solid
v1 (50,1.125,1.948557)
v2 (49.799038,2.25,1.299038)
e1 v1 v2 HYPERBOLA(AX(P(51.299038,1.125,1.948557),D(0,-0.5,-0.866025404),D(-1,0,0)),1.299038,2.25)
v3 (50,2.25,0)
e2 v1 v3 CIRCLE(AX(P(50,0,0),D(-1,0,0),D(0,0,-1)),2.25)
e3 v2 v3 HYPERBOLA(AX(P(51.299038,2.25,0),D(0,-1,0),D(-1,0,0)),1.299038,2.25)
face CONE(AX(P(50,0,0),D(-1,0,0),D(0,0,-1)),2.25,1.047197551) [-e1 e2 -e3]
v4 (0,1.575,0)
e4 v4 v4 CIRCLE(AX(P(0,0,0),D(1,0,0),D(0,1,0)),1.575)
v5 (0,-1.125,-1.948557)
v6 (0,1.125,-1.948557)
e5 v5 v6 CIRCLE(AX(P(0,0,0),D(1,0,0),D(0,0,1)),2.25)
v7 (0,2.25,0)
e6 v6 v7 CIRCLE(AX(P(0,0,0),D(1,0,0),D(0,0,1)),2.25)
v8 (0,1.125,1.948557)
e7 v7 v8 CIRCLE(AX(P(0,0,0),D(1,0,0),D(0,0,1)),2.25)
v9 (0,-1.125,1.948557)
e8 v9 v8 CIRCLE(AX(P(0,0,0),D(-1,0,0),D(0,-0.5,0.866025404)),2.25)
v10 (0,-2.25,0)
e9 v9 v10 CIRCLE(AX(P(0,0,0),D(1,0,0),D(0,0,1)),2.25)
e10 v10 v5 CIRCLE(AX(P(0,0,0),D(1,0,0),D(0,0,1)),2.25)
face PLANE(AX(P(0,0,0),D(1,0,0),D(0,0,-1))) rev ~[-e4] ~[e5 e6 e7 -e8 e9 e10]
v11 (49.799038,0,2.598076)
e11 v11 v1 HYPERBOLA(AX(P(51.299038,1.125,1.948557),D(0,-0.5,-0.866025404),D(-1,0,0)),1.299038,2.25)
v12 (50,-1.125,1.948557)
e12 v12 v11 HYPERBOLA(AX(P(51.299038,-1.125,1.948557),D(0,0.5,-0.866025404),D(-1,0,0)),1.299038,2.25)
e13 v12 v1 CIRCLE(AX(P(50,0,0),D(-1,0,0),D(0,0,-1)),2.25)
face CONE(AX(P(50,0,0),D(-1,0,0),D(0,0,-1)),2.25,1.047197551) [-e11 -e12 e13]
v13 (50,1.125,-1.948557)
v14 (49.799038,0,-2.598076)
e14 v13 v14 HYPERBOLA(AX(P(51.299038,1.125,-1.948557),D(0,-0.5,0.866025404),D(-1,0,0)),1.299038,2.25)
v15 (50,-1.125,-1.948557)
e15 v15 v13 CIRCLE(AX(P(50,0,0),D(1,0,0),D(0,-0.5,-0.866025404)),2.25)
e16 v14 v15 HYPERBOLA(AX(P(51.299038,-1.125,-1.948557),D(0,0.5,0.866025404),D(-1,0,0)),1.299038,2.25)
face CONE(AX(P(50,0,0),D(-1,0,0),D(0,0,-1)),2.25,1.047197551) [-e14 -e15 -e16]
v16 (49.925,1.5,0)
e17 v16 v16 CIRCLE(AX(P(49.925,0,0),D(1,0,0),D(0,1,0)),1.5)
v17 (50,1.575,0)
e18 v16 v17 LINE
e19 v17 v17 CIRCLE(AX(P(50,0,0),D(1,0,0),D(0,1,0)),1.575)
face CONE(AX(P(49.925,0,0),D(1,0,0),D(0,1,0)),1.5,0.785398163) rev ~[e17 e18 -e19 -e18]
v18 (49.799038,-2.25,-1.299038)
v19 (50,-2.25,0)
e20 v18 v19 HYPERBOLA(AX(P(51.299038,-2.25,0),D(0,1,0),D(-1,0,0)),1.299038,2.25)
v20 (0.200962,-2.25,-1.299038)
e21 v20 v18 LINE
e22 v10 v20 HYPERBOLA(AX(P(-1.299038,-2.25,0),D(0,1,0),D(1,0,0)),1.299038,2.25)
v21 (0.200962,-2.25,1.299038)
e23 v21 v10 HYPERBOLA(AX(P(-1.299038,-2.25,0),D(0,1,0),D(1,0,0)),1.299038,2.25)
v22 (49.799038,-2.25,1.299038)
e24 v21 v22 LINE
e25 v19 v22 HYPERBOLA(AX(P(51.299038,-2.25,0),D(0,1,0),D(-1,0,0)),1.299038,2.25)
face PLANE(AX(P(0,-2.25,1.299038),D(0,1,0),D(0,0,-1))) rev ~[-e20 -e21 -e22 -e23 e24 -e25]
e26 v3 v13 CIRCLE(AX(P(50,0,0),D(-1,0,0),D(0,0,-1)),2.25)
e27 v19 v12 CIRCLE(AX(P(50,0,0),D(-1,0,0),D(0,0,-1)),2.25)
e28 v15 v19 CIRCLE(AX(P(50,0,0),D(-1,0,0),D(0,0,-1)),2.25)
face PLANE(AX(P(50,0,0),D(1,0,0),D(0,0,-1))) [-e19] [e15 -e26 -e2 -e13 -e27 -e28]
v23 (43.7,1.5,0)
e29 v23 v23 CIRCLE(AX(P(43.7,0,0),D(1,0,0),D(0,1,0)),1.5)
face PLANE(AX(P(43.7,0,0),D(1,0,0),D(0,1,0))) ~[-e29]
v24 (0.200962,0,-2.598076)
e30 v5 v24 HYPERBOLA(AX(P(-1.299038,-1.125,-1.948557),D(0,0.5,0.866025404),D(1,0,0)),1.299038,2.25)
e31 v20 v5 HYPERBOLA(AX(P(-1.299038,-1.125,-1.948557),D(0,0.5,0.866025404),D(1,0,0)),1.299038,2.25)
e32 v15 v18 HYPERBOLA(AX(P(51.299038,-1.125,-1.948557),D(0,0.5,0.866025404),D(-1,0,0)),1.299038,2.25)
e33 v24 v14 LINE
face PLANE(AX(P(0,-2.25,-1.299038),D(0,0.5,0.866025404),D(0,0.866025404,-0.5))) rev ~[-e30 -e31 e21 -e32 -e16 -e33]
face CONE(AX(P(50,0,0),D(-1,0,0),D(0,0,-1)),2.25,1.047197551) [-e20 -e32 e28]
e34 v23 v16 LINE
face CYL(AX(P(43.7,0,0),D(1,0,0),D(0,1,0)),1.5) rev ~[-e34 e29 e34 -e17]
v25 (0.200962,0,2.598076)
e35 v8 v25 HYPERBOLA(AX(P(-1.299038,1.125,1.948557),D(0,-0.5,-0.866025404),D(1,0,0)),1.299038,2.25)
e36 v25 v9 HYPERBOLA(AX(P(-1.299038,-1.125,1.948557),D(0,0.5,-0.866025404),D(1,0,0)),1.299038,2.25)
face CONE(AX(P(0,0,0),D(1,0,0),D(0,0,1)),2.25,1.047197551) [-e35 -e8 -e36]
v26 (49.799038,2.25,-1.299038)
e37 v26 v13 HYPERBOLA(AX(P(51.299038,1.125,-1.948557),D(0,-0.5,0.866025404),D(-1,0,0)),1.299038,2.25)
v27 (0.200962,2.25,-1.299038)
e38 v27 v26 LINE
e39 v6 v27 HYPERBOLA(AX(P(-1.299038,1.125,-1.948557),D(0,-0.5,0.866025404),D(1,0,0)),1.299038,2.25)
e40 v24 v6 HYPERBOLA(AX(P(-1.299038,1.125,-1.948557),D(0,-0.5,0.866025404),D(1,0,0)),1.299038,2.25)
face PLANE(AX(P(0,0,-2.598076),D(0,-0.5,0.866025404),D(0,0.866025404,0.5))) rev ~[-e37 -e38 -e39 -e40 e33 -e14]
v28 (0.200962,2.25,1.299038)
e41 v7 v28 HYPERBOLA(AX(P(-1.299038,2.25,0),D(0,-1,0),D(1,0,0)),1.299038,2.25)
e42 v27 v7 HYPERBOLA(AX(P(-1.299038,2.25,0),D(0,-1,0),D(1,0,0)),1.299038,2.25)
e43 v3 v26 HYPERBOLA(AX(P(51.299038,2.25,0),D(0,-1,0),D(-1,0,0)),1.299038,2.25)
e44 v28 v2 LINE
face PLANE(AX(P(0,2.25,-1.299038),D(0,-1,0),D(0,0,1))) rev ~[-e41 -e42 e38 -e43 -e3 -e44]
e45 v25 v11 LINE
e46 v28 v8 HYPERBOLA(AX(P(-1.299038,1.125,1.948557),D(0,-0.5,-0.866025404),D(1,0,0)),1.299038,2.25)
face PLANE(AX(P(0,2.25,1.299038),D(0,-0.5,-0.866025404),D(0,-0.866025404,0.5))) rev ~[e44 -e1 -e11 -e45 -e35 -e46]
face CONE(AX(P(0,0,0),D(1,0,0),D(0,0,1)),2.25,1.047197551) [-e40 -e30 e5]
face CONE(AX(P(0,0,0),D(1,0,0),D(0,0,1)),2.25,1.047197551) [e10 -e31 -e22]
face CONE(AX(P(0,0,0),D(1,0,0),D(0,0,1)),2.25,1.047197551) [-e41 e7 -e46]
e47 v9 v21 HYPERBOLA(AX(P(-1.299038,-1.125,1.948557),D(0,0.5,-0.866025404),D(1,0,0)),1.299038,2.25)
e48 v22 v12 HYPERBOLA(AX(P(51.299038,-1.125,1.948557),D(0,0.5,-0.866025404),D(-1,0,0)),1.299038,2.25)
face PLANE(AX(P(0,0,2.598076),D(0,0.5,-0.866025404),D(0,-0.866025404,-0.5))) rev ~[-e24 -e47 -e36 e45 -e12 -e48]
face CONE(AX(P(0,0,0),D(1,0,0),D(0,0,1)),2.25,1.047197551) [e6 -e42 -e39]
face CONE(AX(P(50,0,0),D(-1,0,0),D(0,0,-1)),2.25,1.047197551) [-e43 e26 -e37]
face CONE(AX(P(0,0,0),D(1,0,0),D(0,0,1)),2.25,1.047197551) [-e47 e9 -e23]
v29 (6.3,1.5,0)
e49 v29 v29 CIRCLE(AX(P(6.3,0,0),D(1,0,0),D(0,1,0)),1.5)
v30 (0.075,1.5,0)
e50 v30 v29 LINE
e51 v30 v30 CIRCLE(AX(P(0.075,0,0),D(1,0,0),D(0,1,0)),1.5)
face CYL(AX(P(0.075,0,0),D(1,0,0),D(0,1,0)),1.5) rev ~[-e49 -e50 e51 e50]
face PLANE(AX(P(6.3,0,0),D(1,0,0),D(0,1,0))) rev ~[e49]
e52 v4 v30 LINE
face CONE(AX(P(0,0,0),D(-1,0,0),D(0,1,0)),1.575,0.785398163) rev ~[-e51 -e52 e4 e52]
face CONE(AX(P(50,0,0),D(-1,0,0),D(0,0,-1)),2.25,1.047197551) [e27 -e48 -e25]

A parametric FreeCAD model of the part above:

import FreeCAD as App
import Part
import Sketcher
Q = App.Units.Quantity

doc = App.newDocument("Part")
params = doc.addObject("Spreadsheet::Sheet", "Params")
for row, (alias, value) in enumerate([
    ("pad1_length", "50 mm"),
    ("sketch2_width", "6.3 mm"),
    ("sketch2_height", "1.5 mm"),
    ("groove_angle", "360 deg"),
    ("sketch3_diameter", "4.5 mm"),
    ("sketch3_height", "193.96 mm"),
    ("pocket1_length", "51 mm"),
    ("pocket1_taper", "60 deg"),
    ("sketch4_diameter", "4.5 mm"),
    ("sketch4_height", "193.96 mm"),
    ("pocket2_length", "51 mm"),
    ("pocket2_taper", "60 deg"),
], start=1):
    params.set(f"A{row}", alias)
    params.set(f"B{row}", "=" + value)
    params.setAlias(f"B{row}", alias)

body = doc.addObject("PartDesign::Body", "Body")

# Sketch on YZ plane
sketch1 = body.newObject("Sketcher::SketchObject", "Sketch")
sketch1.AttachmentSupport = (doc.getObject("YZ_Plane"), [""])
sketch1.MapMode = "FlatFace"
sketch1.addGeometry([
    Part.LineSegment(App.Vector(2.2, -1.3, 0), App.Vector(2.2, 1.3, 0)),  # 0
    Part.LineSegment(App.Vector(2.2, 1.3, 0), App.Vector(0, 2.6, 0)),  # 1
    Part.LineSegment(App.Vector(0, 2.6, 0), App.Vector(-2.2, 1.3, 0)),  # 2
    Part.LineSegment(App.Vector(-2.2, 1.3, 0), App.Vector(-2.2, -1.3, 0)),  # 3
    Part.LineSegment(App.Vector(-2.2, -1.3, 0), App.Vector(0, -2.6, 0)),  # 4
    Part.LineSegment(App.Vector(0, -2.6, 0), App.Vector(2.2, -1.3, 0)),  # 5
], False)
sketch1.addConstraint([
    Sketcher.Constraint("Coincident", 0, 2, 1, 1),
    Sketcher.Constraint("Coincident", 1, 2, 2, 1),
    Sketcher.Constraint("Coincident", 2, 2, 3, 1),
    Sketcher.Constraint("Coincident", 3, 2, 4, 1),
    Sketcher.Constraint("Coincident", 4, 2, 5, 1),
    Sketcher.Constraint("Coincident", 5, 2, 0, 1),
    Sketcher.Constraint("Vertical", 0),
    Sketcher.Constraint("Vertical", 3),
    Sketcher.Constraint("Symmetric", 0, 2, 3, 2, -1, 1),
    Sketcher.Constraint("Symmetric", 1, 2, 4, 2, -1, 1),
    Sketcher.Constraint("PointOnObject", 1, 2, -2),
    Sketcher.Constraint("Parallel", 2, 5),
    Sketcher.Constraint("Horizontal", 0, 2, 2, 2),
    Sketcher.Constraint("Angle", 1, Q("150 deg")),
    Sketcher.Constraint("DistanceX", 2, 2, 0, 2, 4.5),
    Sketcher.Constraint("DistanceY", 0, 1, 0, 2, 2.598076),
])
pad1 = body.newObject("PartDesign::Pad", "Pad")
pad1.Profile = sketch1
pad1.setExpression("Length", "Params.pad1_length")

# Sketch on XY plane
sketch2 = body.newObject("Sketcher::SketchObject", "Sketch001")
sketch2.AttachmentSupport = (doc.getObject("XY_Plane"), [""])
sketch2.MapMode = "FlatFace"
sketch2.addGeometry([
    Part.LineSegment(App.Vector(0.07, 1.5, 0), App.Vector(0, 1.57, 0)),  # 0
    Part.LineSegment(App.Vector(0, 1.57, 0), App.Vector(0, 0, 0)),  # 1
    Part.LineSegment(App.Vector(0, 0, 0), App.Vector(6.3, 0, 0)),  # 2
    Part.LineSegment(App.Vector(6.3, 0, 0), App.Vector(6.3, 1.5, 0)),  # 3
    Part.LineSegment(App.Vector(6.3, 1.5, 0), App.Vector(0.07, 1.5, 0)),  # 4
    Part.LineSegment(App.Vector(43.7, 0, 0), App.Vector(50, 0, 0)),  # 5
    Part.LineSegment(App.Vector(50, 0, 0), App.Vector(50, 1.57, 0)),  # 6
    Part.LineSegment(App.Vector(50, 1.57, 0), App.Vector(49.92, 1.5, 0)),  # 7
    Part.LineSegment(App.Vector(49.92, 1.5, 0), App.Vector(43.7, 1.5, 0)),  # 8
    Part.LineSegment(App.Vector(43.7, 1.5, 0), App.Vector(43.7, 0, 0)),  # 9
], False)
sketch2.addConstraint([
    Sketcher.Constraint("Coincident", 0, 2, 1, 1),
    Sketcher.Constraint("Coincident", 1, 2, 2, 1),
    Sketcher.Constraint("Coincident", 2, 2, 3, 1),
    Sketcher.Constraint("Coincident", 3, 2, 4, 1),
    Sketcher.Constraint("Coincident", 4, 2, 0, 1),
    Sketcher.Constraint("Coincident", 5, 2, 6, 1),
    Sketcher.Constraint("Coincident", 6, 2, 7, 1),
    Sketcher.Constraint("Coincident", 7, 2, 8, 1),
    Sketcher.Constraint("Coincident", 8, 2, 9, 1),
    Sketcher.Constraint("Coincident", 9, 2, 5, 1),
    Sketcher.Constraint("Vertical", 1),
    Sketcher.Constraint("Horizontal", 2),
    Sketcher.Constraint("Vertical", 3),
    Sketcher.Constraint("Horizontal", 4),
    Sketcher.Constraint("Horizontal", 5),
    Sketcher.Constraint("Vertical", 6),
    Sketcher.Constraint("Horizontal", 8),
    Sketcher.Constraint("Vertical", 9),
    Sketcher.Constraint("Coincident", 1, 2, -1, 1),
    Sketcher.Constraint("PointOnObject", 5, 2, -1),
    Sketcher.Constraint("Perpendicular", 0, 7),
    Sketcher.Constraint("Horizontal", 0, 2, 6, 2),
    Sketcher.Constraint("Horizontal", 4, 2, 7, 2),
    Sketcher.Constraint("Equal", 2, 5),
    Sketcher.Constraint("Equal", 4, 8),
    Sketcher.Constraint("DistanceX", 2, 1, 2, 2, 6.3),
    Sketcher.Constraint("DistanceY", 3, 1, 3, 2, 1.5),
    Sketcher.Constraint("DistanceX", -1, 1, 5, 2, 50.0),
    Sketcher.Constraint("DistanceX", 4, 2, 4, 1, 6.225),
])
sketch2.setExpression("Constraints[25]", "Params.sketch2_width")
sketch2.setExpression("Constraints[26]", "Params.sketch2_height")
groove = body.newObject("PartDesign::Groove", "Groove")
groove.Profile = sketch2
groove.ReferenceAxis = (sketch2, ["H_Axis"])
groove.setExpression("Angle", "Params.groove_angle")

# Sketch on YZ plane
sketch3 = body.newObject("Sketcher::SketchObject", "Sketch002")
sketch3.AttachmentSupport = (doc.getObject("YZ_Plane"), [""])
sketch3.MapMode = "FlatFace"
sketch3.addGeometry([
    Part.LineSegment(App.Vector(96.6, -97, 0), App.Vector(-96.6, -97, 0)),  # 0
    Part.LineSegment(App.Vector(-96.6, -97, 0), App.Vector(-96.6, 97, 0)),  # 1
    Part.LineSegment(App.Vector(-96.6, 97, 0), App.Vector(96.6, 97, 0)),  # 2
    Part.LineSegment(App.Vector(96.6, 97, 0), App.Vector(96.6, -97, 0)),  # 3
    Part.Circle(App.Vector(0, 0, 0), App.Vector(0, 0, 1), 2.2),  # 4
], False)
sketch3.addConstraint([
    Sketcher.Constraint("Coincident", 0, 2, 1, 1),
    Sketcher.Constraint("Coincident", 1, 2, 2, 1),
    Sketcher.Constraint("Coincident", 2, 2, 3, 1),
    Sketcher.Constraint("Coincident", 3, 2, 0, 1),
    Sketcher.Constraint("Horizontal", 0),
    Sketcher.Constraint("Vertical", 1),
    Sketcher.Constraint("Horizontal", 2),
    Sketcher.Constraint("Vertical", 3),
    Sketcher.Constraint("Coincident", 4, 3, -1, 1),
    Sketcher.Constraint("Symmetric", 0, 2, 2, 2, -1, 1),
    Sketcher.Constraint("Diameter", 4, 4.5),
    Sketcher.Constraint("DistanceY", 1, 1, 1, 2, 193.96),
    Sketcher.Constraint("DistanceX", 0, 2, 0, 1, 193.264),
])
sketch3.setExpression("Constraints[10]", "Params.sketch3_diameter")
sketch3.setExpression("Constraints[11]", "Params.sketch3_height")
pocket1 = body.newObject("PartDesign::Pocket", "Pocket")
pocket1.Profile = sketch3
pocket1.setExpression("Length", "Params.pocket1_length")
pocket1.Reversed = True
pocket1.setExpression("TaperAngle", "Params.pocket1_taper")

# Sketch on YZ plane
sketch4 = body.newObject("Sketcher::SketchObject", "Sketch003")
sketch4.AttachmentSupport = (doc.getObject("YZ_Plane"), [""])
sketch4.MapMode = "FlatFace"
sketch4.AttachmentOffset = App.Placement(App.Vector(0, 0, 50), App.Rotation())
sketch4.addGeometry([
    Part.LineSegment(App.Vector(96.6, 97, 0), App.Vector(-96.6, 97, 0)),  # 0
    Part.LineSegment(App.Vector(-96.6, 97, 0), App.Vector(-96.6, -97, 0)),  # 1
    Part.LineSegment(App.Vector(-96.6, -97, 0), App.Vector(96.6, -97, 0)),  # 2
    Part.LineSegment(App.Vector(96.6, -97, 0), App.Vector(96.6, 97, 0)),  # 3
    Part.Circle(App.Vector(0, 0, 0), App.Vector(0, 0, 1), 2.2),  # 4
], False)
sketch4.addConstraint([
    Sketcher.Constraint("Coincident", 0, 2, 1, 1),
    Sketcher.Constraint("Coincident", 1, 2, 2, 1),
    Sketcher.Constraint("Coincident", 2, 2, 3, 1),
    Sketcher.Constraint("Coincident", 3, 2, 0, 1),
    Sketcher.Constraint("Horizontal", 0),
    Sketcher.Constraint("Vertical", 1),
    Sketcher.Constraint("Horizontal", 2),
    Sketcher.Constraint("Vertical", 3),
    Sketcher.Constraint("Coincident", 4, 3, -1, 1),
    Sketcher.Constraint("Symmetric", 0, 2, 2, 2, -1, 1),
    Sketcher.Constraint("Diameter", 4, 4.5),
    Sketcher.Constraint("DistanceY", 1, 2, 1, 1, 193.96),
    Sketcher.Constraint("DistanceX", 0, 2, 0, 1, 193.264),
])
sketch4.setExpression("Constraints[10]", "Params.sketch4_diameter")
sketch4.setExpression("Constraints[11]", "Params.sketch4_height")
pocket2 = body.newObject("PartDesign::Pocket", "Pocket001")
pocket2.Profile = sketch4
pocket2.setExpression("Length", "Params.pocket2_length")
pocket2.setExpression("TaperAngle", "Params.pocket2_taper")

doc.recompute()
